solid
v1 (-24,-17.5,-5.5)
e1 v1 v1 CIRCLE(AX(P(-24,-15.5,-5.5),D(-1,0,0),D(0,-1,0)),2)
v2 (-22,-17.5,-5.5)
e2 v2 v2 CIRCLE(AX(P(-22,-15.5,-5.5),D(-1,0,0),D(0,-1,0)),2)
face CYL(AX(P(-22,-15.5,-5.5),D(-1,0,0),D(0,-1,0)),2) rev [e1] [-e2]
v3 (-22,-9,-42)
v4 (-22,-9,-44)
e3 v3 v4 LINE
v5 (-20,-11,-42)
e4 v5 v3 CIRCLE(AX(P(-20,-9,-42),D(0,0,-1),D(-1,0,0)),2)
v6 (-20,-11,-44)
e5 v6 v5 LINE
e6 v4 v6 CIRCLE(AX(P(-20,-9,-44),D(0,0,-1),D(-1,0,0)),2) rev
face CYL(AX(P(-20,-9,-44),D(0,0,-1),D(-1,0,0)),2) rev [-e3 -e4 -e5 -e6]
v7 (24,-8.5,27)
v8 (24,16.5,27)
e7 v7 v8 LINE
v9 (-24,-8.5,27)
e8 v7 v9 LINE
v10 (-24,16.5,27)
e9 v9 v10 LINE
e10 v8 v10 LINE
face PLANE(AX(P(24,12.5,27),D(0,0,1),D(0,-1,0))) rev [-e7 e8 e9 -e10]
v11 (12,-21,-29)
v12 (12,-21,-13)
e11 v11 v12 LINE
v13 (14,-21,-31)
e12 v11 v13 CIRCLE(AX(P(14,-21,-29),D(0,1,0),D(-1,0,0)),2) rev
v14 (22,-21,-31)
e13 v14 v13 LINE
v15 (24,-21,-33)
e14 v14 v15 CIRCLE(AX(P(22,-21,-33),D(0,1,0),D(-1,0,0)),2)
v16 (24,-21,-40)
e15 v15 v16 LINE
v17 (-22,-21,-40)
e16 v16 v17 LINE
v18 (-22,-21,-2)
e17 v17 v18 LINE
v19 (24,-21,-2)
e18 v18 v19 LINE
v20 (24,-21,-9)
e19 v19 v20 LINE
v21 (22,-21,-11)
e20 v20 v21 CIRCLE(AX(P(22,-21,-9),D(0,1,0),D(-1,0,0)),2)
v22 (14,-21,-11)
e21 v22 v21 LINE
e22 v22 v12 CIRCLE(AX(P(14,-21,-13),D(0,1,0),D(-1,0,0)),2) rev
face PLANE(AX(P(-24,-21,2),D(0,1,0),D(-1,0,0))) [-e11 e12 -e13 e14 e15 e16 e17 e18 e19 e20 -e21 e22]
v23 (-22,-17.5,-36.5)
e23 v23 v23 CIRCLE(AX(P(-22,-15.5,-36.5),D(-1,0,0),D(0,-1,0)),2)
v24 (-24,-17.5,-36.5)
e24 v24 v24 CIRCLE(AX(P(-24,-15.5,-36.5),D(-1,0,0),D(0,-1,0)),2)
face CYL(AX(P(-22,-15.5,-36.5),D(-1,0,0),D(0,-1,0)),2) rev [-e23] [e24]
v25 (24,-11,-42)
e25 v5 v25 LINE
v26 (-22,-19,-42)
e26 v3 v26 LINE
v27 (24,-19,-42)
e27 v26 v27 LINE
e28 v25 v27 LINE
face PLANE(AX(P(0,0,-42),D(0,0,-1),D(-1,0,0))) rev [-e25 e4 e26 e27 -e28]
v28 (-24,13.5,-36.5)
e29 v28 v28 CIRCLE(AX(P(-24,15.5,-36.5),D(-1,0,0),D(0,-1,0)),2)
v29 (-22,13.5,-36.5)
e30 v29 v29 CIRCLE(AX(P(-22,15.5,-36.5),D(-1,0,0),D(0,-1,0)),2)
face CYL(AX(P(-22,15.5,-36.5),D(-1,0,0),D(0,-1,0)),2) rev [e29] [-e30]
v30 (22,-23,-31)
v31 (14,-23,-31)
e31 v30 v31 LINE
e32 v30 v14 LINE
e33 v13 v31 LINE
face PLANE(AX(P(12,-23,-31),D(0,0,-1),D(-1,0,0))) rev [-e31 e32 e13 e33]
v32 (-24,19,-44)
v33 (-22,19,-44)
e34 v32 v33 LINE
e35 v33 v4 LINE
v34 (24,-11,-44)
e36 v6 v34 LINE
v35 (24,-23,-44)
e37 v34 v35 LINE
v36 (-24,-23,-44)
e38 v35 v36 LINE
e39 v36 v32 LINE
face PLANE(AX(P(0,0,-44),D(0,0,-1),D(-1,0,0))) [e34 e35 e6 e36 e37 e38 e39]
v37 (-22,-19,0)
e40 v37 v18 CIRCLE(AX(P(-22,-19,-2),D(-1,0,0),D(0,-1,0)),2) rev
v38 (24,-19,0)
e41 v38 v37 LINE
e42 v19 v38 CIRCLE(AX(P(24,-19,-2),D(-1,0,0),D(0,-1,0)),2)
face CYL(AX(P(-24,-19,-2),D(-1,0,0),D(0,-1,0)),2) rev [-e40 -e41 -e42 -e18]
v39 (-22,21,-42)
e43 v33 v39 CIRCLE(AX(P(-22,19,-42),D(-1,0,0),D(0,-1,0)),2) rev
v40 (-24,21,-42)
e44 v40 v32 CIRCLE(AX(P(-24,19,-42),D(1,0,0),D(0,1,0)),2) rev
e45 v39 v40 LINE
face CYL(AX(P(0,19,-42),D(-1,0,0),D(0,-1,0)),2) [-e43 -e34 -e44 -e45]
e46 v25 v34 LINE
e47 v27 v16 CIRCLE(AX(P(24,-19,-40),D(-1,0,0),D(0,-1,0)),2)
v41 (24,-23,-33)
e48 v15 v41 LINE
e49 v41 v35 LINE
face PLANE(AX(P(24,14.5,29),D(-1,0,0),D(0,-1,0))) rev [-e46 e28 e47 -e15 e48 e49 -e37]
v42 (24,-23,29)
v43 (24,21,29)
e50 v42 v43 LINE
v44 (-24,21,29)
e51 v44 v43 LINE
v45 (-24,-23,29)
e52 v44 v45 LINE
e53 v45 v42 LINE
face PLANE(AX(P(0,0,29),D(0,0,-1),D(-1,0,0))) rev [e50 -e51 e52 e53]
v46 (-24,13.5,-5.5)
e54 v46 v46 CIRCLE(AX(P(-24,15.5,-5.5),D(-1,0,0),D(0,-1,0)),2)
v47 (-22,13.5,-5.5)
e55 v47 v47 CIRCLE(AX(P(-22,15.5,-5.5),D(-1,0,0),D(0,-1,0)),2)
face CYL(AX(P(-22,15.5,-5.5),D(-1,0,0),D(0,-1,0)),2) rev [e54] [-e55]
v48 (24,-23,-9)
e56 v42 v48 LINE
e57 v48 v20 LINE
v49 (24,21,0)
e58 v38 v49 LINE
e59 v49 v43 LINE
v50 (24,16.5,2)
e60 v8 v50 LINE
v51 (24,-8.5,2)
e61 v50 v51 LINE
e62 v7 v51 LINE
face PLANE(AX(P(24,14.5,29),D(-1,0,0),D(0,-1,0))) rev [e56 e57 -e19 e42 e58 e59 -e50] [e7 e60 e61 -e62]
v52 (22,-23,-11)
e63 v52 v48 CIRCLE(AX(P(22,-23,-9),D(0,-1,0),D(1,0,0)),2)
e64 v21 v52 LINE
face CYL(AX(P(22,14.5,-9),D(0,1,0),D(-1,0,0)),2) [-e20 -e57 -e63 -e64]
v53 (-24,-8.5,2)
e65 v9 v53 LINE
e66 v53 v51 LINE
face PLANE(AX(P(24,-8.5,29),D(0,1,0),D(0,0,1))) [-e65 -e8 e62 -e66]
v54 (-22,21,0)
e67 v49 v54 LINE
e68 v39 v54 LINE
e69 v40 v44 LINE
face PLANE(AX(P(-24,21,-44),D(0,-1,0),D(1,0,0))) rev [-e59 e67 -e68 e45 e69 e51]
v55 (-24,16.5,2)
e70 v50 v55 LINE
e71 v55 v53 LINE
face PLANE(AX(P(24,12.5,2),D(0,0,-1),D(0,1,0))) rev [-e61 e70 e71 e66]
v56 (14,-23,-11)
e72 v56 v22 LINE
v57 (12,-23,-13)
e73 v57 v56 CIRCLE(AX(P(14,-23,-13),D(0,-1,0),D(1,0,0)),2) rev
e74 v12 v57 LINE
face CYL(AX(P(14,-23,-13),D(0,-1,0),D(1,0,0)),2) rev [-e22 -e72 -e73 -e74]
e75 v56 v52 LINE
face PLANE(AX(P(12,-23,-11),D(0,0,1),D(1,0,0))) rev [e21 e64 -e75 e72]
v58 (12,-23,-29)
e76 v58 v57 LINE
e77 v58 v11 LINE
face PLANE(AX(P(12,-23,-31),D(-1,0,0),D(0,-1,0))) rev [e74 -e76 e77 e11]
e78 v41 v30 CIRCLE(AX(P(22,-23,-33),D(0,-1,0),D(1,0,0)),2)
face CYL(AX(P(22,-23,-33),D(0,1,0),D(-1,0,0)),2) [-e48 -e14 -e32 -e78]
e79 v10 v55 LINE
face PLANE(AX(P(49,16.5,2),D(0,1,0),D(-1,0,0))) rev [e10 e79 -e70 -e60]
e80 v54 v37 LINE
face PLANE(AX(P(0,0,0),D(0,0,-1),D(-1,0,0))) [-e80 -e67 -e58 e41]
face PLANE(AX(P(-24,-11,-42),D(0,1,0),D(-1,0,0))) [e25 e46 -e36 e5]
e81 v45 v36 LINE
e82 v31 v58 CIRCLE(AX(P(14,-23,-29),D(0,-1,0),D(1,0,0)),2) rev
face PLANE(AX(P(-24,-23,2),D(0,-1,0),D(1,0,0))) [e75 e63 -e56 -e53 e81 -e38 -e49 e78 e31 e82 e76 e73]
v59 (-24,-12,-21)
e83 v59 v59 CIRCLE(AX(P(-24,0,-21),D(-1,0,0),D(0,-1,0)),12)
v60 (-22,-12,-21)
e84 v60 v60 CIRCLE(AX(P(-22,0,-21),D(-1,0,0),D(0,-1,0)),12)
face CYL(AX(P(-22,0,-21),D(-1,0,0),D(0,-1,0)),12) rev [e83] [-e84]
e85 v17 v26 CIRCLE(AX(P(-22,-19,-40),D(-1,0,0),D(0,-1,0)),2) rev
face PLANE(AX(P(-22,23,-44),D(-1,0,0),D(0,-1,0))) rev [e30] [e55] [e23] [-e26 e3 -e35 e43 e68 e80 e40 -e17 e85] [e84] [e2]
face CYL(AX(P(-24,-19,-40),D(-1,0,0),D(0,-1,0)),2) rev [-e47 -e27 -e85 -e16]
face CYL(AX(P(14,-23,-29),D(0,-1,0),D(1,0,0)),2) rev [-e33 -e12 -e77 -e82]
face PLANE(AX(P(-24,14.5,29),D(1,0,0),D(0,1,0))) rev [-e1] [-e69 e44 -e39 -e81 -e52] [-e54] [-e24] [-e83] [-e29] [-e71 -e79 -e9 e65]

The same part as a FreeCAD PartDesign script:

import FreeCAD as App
import Part
import Sketcher
from FreeCAD import Vector
Q = App.Units.Quantity


def edges_at(feature, points):
    """Names of the edges that pass closest to the given points."""
    edges = feature.Shape.Edges
    near = lambda p: min(range(len(edges)), key=lambda i: edges[i].distToShape(Part.Vertex(*p))[0])
    return sorted({f"Edge{near(p) + 1}" for p in points})

doc = App.newDocument("Part")
body = doc.addObject("PartDesign::Body", "Body")

# Sketch on XY plane
sketch1 = body.newObject("Sketcher::SketchObject", "Sketch")
sketch1.AttachmentSupport = (doc.getObject("XY_Plane"), [""])
sketch1.MapMode = "FlatFace"
sketch1.addGeometry([
    Part.LineSegment(Vector(-24, 14, 0), Vector(-24, -14, 0)),
    Part.LineSegment(Vector(-24, -14, 0), Vector(24, -14, 0)),
    Part.LineSegment(Vector(24, -14, 0), Vector(24, 14, 0)),
    Part.LineSegment(Vector(24, 14, 0), Vector(-24, 14, 0)),
], False)
sketch1.addConstraint([
    Sketcher.Constraint("Coincident", 0, 2, 1, 1),
    Sketcher.Constraint("Coincident", 1, 2, 2, 1),
    Sketcher.Constraint("Coincident", 2, 2, 3, 1),
    Sketcher.Constraint("Coincident", 3, 2, 0, 1),
    Sketcher.Constraint("Vertical", 0),
    Sketcher.Constraint("Horizontal", 1),
    Sketcher.Constraint("Vertical", 2),
    Sketcher.Constraint("Horizontal", 3),
    Sketcher.Constraint("Symmetric", 0, 2, 2, 2, -1, 1),
    Sketcher.Constraint("DistanceX", 1, 1, 1, 2, Q("48 mm")),
    Sketcher.Constraint("DistanceY", 0, 2, 0, 1, Q("29 mm")),
])
pad1 = body.newObject("PartDesign::Pad", "Pad")
pad1.Profile = sketch1
pad1.Length = 29

# Sketch on YZ plane
sketch2 = body.newObject("Sketcher::SketchObject", "Sketch001")
sketch2.AttachmentSupport = (doc.getObject("YZ_Plane"), [""])
sketch2.MapMode = "FlatFace"
sketch2.AttachmentOffset = App.Placement(Vector(0, 0, -24), App.Rotation())
sketch2.addGeometry([
    Part.LineSegment(Vector(12, 2, 0), Vector(-12, 2, 0)),
    Part.LineSegment(Vector(-12, 2, 0), Vector(-12, 27, 0)),
    Part.LineSegment(Vector(-12, 27, 0), Vector(12, 27, 0)),
    Part.LineSegment(Vector(12, 27, 0), Vector(12, 2, 0)),
], False)
sketch2.addConstraint([
    Sketcher.Constraint("Coincident", 0, 2, 1, 1),
    Sketcher.Constraint("Coincident", 1, 2, 2, 1),
    Sketcher.Constraint("Coincident", 2, 2, 3, 1),
    Sketcher.Constraint("Coincident", 3, 2, 0, 1),
    Sketcher.Constraint("Horizontal", 0),
    Sketcher.Constraint("Vertical", 1),
    Sketcher.Constraint("Horizontal", 2),
    Sketcher.Constraint("Vertical", 3),
    Sketcher.Constraint("Equal", 2, 1),
    Sketcher.Constraint("DistanceX", 0, 2, 0, 1, Q("25 mm")),
    Sketcher.Constraint("DistanceY", -1, 1, 0, 2, Q("2 mm")),
    Sketcher.Constraint("DistanceX", 0, 2, -1, 1, Q("12.5 mm")),
])
pocket1 = body.newObject("PartDesign::Pocket", "Pocket")
pocket1.Profile = sketch2
pocket1.Length = 48
pocket1.Reversed = True

# Sketch on XY plane
sketch3 = body.newObject("Sketcher::SketchObject", "Sketch002")
sketch3.AttachmentSupport = (doc.getObject("XY_Plane"), [""])
sketch3.MapMode = "FlatFace"
sketch3.addGeometry([
    Part.LineSegment(Vector(24, 23, 0), Vector(24, -23, 0)),
    Part.LineSegment(Vector(24, -23, 0), Vector(-24, -23, 0)),
    Part.LineSegment(Vector(-24, -23, 0), Vector(-24, 23, 0)),
    Part.LineSegment(Vector(-24, 23, 0), Vector(24, 23, 0)),
], False)
sketch3.addConstraint([
    Sketcher.Constraint("Coincident", 0, 2, 1, 1),
    Sketcher.Constraint("Coincident", 1, 2, 2, 1),
    Sketcher.Constraint("Coincident", 2, 2, 3, 1),
    Sketcher.Constraint("Coincident", 3, 2, 0, 1),
    Sketcher.Constraint("Vertical", 0),
    Sketcher.Constraint("Horizontal", 1),
    Sketcher.Constraint("Vertical", 2),
    Sketcher.Constraint("Horizontal", 3),
    Sketcher.Constraint("Symmetric", 0, 2, 2, 2, -1, 1),
    Sketcher.Constraint("DistanceX", 1, 2, 1, 1, Q("48 mm")),
    Sketcher.Constraint("DistanceY", 0, 2, 0, 1, Q("46 mm")),
])
pad2 = body.newObject("PartDesign::Pad", "Pad001")
pad2.Profile = sketch3
pad2.Length = 2

# Sketch on XY plane
sketch4 = body.newObject("Sketcher::SketchObject", "Sketch003")
sketch4.AttachmentSupport = (doc.getObject("XY_Plane"), [""])
sketch4.MapMode = "FlatFace"
sketch4.addGeometry([
    Part.LineSegment(Vector(24, -21, 0), Vector(24, -23, 0)),
    Part.LineSegment(Vector(24, -23, 0), Vector(-24, -23, 0)),
    Part.LineSegment(Vector(-24, -23, 0), Vector(-24, -21, 0)),
    Part.LineSegment(Vector(-24, -21, 0), Vector(24, -21, 0)),
], False)
sketch4.addConstraint([
    Sketcher.Constraint("Coincident", 0, 2, 1, 1),
    Sketcher.Constraint("Coincident", 1, 2, 2, 1),
    Sketcher.Constraint("Coincident", 2, 2, 3, 1),
    Sketcher.Constraint("Coincident", 3, 2, 0, 1),
    Sketcher.Constraint("Vertical", 0),
    Sketcher.Constraint("Horizontal", 1),
    Sketcher.Constraint("Vertical", 2),
    Sketcher.Constraint("Horizontal", 3),
    Sketcher.Constraint("DistanceX", 1, 2, 1, 1, Q("48 mm")),
    Sketcher.Constraint("DistanceY", 0, 2, 0, 1, Q("2 mm")),
    Sketcher.Constraint("DistanceX", -1, 1, 0, 2, Q("24 mm")),
    Sketcher.Constraint("DistanceY", 0, 2, -1, 1, Q("23 mm")),
])
pad3 = body.newObject("PartDesign::Pad", "Pad002")
pad3.Profile = sketch4
pad3.Type = "TwoLengths"
pad3.Length = 44
pad3.Length2 = 2
pad3.Reversed = True

# Sketch on XY plane
sketch5 = body.newObject("Sketcher::SketchObject", "Sketch004")
sketch5.AttachmentSupport = (doc.getObject("XY_Plane"), [""])
sketch5.MapMode = "FlatFace"
sketch5.addGeometry([
    Part.LineSegment(Vector(-22, 23, 0), Vector(-22, -23, 0)),
    Part.LineSegment(Vector(-22, -23, 0), Vector(-24, -23, 0)),
    Part.LineSegment(Vector(-24, -23, 0), Vector(-24, 23, 0)),
    Part.LineSegment(Vector(-24, 23, 0), Vector(-22, 23, 0)),
], False)
sketch5.addConstraint([
    Sketcher.Constraint("Coincident", 0, 2, 1, 1),
    Sketcher.Constraint("Coincident", 1, 2, 2, 1),
    Sketcher.Constraint("Coincident", 2, 2, 3, 1),
    Sketcher.Constraint("Coincident", 3, 2, 0, 1),
    Sketcher.Constraint("Vertical", 0),
    Sketcher.Constraint("Horizontal", 1),
    Sketcher.Constraint("Vertical", 2),
    Sketcher.Constraint("Horizontal", 3),
    Sketcher.Constraint("DistanceX", 1, 2, 1, 1, Q("2 mm")),
    Sketcher.Constraint("DistanceY", 0, 2, 0, 1, Q("46 mm")),
    Sketcher.Constraint("DistanceX", 0, 2, -1, 1, Q("22 mm")),
    Sketcher.Constraint("DistanceY", 0, 2, -1, 1, Q("23 mm")),
])
pad4 = body.newObject("PartDesign::Pad", "Pad003")
pad4.Profile = sketch5
pad4.Length = 44
pad4.Reversed = True

# Sketch on XY plane
sketch6 = body.newObject("Sketcher::SketchObject", "Sketch005")
sketch6.AttachmentSupport = (doc.getObject("XY_Plane"), [""])
sketch6.MapMode = "FlatFace"
sketch6.AttachmentOffset = App.Placement(Vector(0, 0, -44), App.Rotation())
sketch6.addGeometry([
    Part.LineSegment(Vector(24, -11, 0), Vector(24, -23, 0)),
    Part.LineSegment(Vector(24, -23, 0), Vector(-24, -23, 0)),
    Part.LineSegment(Vector(-24, -23, 0), Vector(-24, -11, 0)),
    Part.LineSegment(Vector(-24, -11, 0), Vector(24, -11, 0)),
], False)
sketch6.addConstraint([
    Sketcher.Constraint("Coincident", 0, 2, 1, 1),
    Sketcher.Constraint("Coincident", 1, 2, 2, 1),
    Sketcher.Constraint("Coincident", 2, 2, 3, 1),
    Sketcher.Constraint("Coincident", 3, 2, 0, 1),
    Sketcher.Constraint("Vertical", 0),
    Sketcher.Constraint("Horizontal", 1),
    Sketcher.Constraint("Vertical", 2),
    Sketcher.Constraint("Horizontal", 3),
    Sketcher.Constraint("DistanceX", 1, 2, 1, 1, Q("48 mm")),
    Sketcher.Constraint("DistanceY", 0, 2, 0, 1, Q("12 mm")),
    Sketcher.Constraint("DistanceX", -1, 1, 0, 2, Q("24 mm")),
    Sketcher.Constraint("DistanceY", 0, 2, -1, 1, Q("23 mm")),
])
pad5 = body.newObject("PartDesign::Pad", "Pad004")
pad5.Profile = sketch6
pad5.Length = 2

# Sketch on YZ plane
sketch7 = body.newObject("Sketcher::SketchObject", "Sketch006")
sketch7.AttachmentSupport = (doc.getObject("YZ_Plane"), [""])
sketch7.MapMode = "FlatFace"
sketch7.AttachmentOffset = App.Placement(Vector(0, 0, -24), App.Rotation())
sketch7.addGeometry([
    Part.Circle(Vector(15.5, -36.5, 0), Vector(0, 0, 1), 2),  # 0
    Part.Circle(Vector(15.5, -5.5, 0), Vector(0, 0, 1), 2),  # 1
    Part.Circle(Vector(-15.5, -5.5, 0), Vector(0, 0, 1), 2),  # 2
    Part.Circle(Vector(-15.5, -36.5, 0), Vector(0, 0, 1), 2),  # 3
    Part.Circle(Vector(0, -21, 0), Vector(0, 0, 1), 12),  # 4
], False)
sketch7.addConstraint([
    Sketcher.Constraint("Equal", 0, 1),
    Sketcher.Constraint("Equal", 1, 2),
    Sketcher.Constraint("Equal", 2, 3),
    Sketcher.Constraint("Symmetric", 1, 3, 2, 3, -2),
    Sketcher.Constraint("Symmetric", 0, 3, 3, 3, -2),
    Sketcher.Constraint("PointOnObject", 4, 3, -2),
    Sketcher.Constraint("Vertical", 0, 3, 1, 3),
    Sketcher.Constraint("Diameter", 0, Q("4 mm")),
    Sketcher.Constraint("Diameter", 4, Q("24 mm")),
    Sketcher.Constraint("DistanceY", 4, 3, -1, 1, Q("21 mm")),
    Sketcher.Constraint("DistanceY", 0, 3, 1, 3, Q("31 mm")),
    Sketcher.Constraint("DistanceX", 2, 3, 1, 3, Q("31 mm")),
    Sketcher.Constraint("DistanceY", 0, 3, -1, 1, Q("36.5 mm")),
])
pocket2 = body.newObject("PartDesign::Pocket", "Pocket001")
pocket2.Profile = sketch7
pocket2.Length = 2
pocket2.Reversed = True

# Sketch on XZ plane
sketch8 = body.newObject("Sketcher::SketchObject", "Sketch007")
sketch8.AttachmentSupport = (doc.getObject("XZ_Plane"), [""])
sketch8.MapMode = "FlatFace"
sketch8.AttachmentOffset = App.Placement(Vector(0, 0, 21), App.Rotation())
sketch8.addGeometry([
    Part.LineSegment(Vector(12, -31, 0), Vector(12, -11, 0)),
    Part.LineSegment(Vector(12, -11, 0), Vector(24, -11, 0)),
    Part.LineSegment(Vector(24, -11, 0), Vector(24, -31, 0)),
    Part.LineSegment(Vector(24, -31, 0), Vector(12, -31, 0)),
], False)
sketch8.addConstraint([
    Sketcher.Constraint("Coincident", 0, 2, 1, 1),
    Sketcher.Constraint("Coincident", 1, 2, 2, 1),
    Sketcher.Constraint("Coincident", 2, 2, 3, 1),
    Sketcher.Constraint("Coincident", 3, 2, 0, 1),
    Sketcher.Constraint("Vertical", 0),
    Sketcher.Constraint("Horizontal", 1),
    Sketcher.Constraint("Vertical", 2),
    Sketcher.Constraint("Horizontal", 3),
    Sketcher.Constraint("DistanceX", 1, 1, 1, 2, Q("12 mm")),
    Sketcher.Constraint("DistanceY", 0, 1, 0, 2, Q("20 mm")),
    Sketcher.Constraint("DistanceX", -1, 1, 0, 2, Q("12 mm")),
    Sketcher.Constraint("DistanceY", 0, 2, -1, 1, Q("11 mm")),
])
pocket3 = body.newObject("PartDesign::Pocket", "Pocket002")
pocket3.Profile = sketch8
pocket3.Length = 2
pocket3.Reversed = True
doc.recompute()

fillet = body.newObject("PartDesign::Fillet", "Fillet")
fillet.Base = (pocket3, edges_at(pocket3, [(-22, -11, -43)]))
fillet.Radius = 2

# Sketch on XY plane
sketch9 = body.newObject("Sketcher::SketchObject", "Sketch008")
sketch9.AttachmentSupport = (doc.getObject("XY_Plane"), [""])
sketch9.MapMode = "FlatFace"
sketch9.AttachmentOffset = App.Placement(Vector(0, 0, 29), App.Rotation())
sketch9.addGeometry([
    Part.LineSegment(Vector(-24, 23, 0), Vector(-24, 12, 0)),  # 0
    Part.LineSegment(Vector(-24, 12, 0), Vector(24, 12, 0)),  # 1
    Part.LineSegment(Vector(24, 12, 0), Vector(24, 23, 0)),  # 2
    Part.LineSegment(Vector(24, 23, 0), Vector(-24, 23, 0)),  # 3
    Part.LineSegment(Vector(-24, -12, 0), Vector(-24, -23, 0)),  # 4
    Part.LineSegment(Vector(-24, -23, 0), Vector(24, -23, 0)),  # 5
    Part.LineSegment(Vector(24, -23, 0), Vector(24, -12, 0)),  # 6
    Part.LineSegment(Vector(24, -12, 0), Vector(-24, -12, 0)),  # 7
], False)
sketch9.addConstraint([
    Sketcher.Constraint("Coincident", 0, 2, 1, 1),
    Sketcher.Constraint("Coincident", 1, 2, 2, 1),
    Sketcher.Constraint("Coincident", 2, 2, 3, 1),
    Sketcher.Constraint("Coincident", 3, 2, 0, 1),
    Sketcher.Constraint("Coincident", 4, 2, 5, 1),
    Sketcher.Constraint("Coincident", 5, 2, 6, 1),
    Sketcher.Constraint("Coincident", 6, 2, 7, 1),
    Sketcher.Constraint("Coincident", 7, 2, 4, 1),
    Sketcher.Constraint("Vertical", 0),
    Sketcher.Constraint("Horizontal", 1),
    Sketcher.Constraint("Vertical", 2),
    Sketcher.Constraint("Horizontal", 3),
    Sketcher.Constraint("Vertical", 4),
    Sketcher.Constraint("Horizontal", 5),
    Sketcher.Constraint("Vertical", 6),
    Sketcher.Constraint("Horizontal", 7),
    Sketcher.Constraint("Symmetric", 2, 2, 4, 2, -1, 1),
    Sketcher.Constraint("Symmetric", 0, 2, 6, 2, -1, 1),
    Sketcher.Constraint("Vertical", 3, 2, 4, 2),
    Sketcher.Constraint("DistanceX", 1, 1, 1, 2, Q("48 mm")),
    Sketcher.Constraint("DistanceY", 0, 2, 0, 1, Q("10.5 mm")),
    Sketcher.Constraint("DistanceY", -1, 1, 2, 2, Q("23 mm")),
])
pad6 = body.newObject("PartDesign::Pad", "Pad005")
pad6.Profile = sketch9
pad6.Length = 29
pad6.Reversed = True

# Sketch on XY plane
sketch10 = body.newObject("Sketcher::SketchObject", "Sketch009")
sketch10.AttachmentSupport = (doc.getObject("XY_Plane"), [""])
sketch10.MapMode = "FlatFace"
sketch10.AttachmentOffset = App.Placement(Vector(0, 0, 29), App.Rotation())
sketch10.addGeometry([
    Part.LineSegment(Vector(-24, 23, 0), Vector(-24, 21, 0)),
    Part.LineSegment(Vector(-24, 21, 0), Vector(24, 21, 0)),
    Part.LineSegment(Vector(24, 21, 0), Vector(24, 23, 0)),
    Part.LineSegment(Vector(24, 23, 0), Vector(-24, 23, 0)),
], False)
sketch10.addConstraint([
    Sketcher.Constraint("Coincident", 0, 2, 1, 1),
    Sketcher.Constraint("Coincident", 1, 2, 2, 1),
    Sketcher.Constraint("Coincident", 2, 2, 3, 1),
    Sketcher.Constraint("Coincident", 3, 2, 0, 1),
    Sketcher.Constraint("Vertical", 0),
    Sketcher.Constraint("Horizontal", 1),
    Sketcher.Constraint("Vertical", 2),
    Sketcher.Constraint("Horizontal", 3),
    Sketcher.Constraint("DistanceX", 1, 1, 1, 2, Q("48 mm")),
    Sketcher.Constraint("DistanceY", 0, 2, 0, 1, Q("2 mm")),
    Sketcher.Constraint("DistanceX", 0, 2, -1, 1, Q("24 mm")),
    Sketcher.Constraint("DistanceY", -1, 1, 0, 2, Q("21 mm")),
])
pocket4 = body.newObject("PartDesign::Pocket", "Pocket003")
pocket4.Profile = sketch10
pocket4.Length = 73

# Sketch on YZ plane
sketch11 = body.newObject("Sketcher::SketchObject", "Sketch010")
sketch11.AttachmentSupport = (doc.getObject("YZ_Plane"), [""])
sketch11.MapMode = "FlatFace"
sketch11.AttachmentOffset = App.Placement(Vector(0, 0, -24), App.Rotation())
sketch11.addGeometry([
    Part.LineSegment(Vector(16.5, 2, 0), Vector(12.5, 2, 0)),
    Part.LineSegment(Vector(12.5, 2, 0), Vector(12.5, 27, 0)),
    Part.LineSegment(Vector(12.5, 27, 0), Vector(16.5, 27, 0)),
    Part.LineSegment(Vector(16.5, 27, 0), Vector(16.5, 2, 0)),
], False)
sketch11.addConstraint([
    Sketcher.Constraint("Coincident", 0, 2, 1, 1),
    Sketcher.Constraint("Coincident", 1, 2, 2, 1),
    Sketcher.Constraint("Coincident", 2, 2, 3, 1),
    Sketcher.Constraint("Coincident", 3, 2, 0, 1),
    Sketcher.Constraint("Horizontal", 0),
    Sketcher.Constraint("Vertical", 1),
    Sketcher.Constraint("Horizontal", 2),
    Sketcher.Constraint("Vertical", 3),
    Sketcher.Constraint("DistanceX", 0, 2, 0, 1, Q("4 mm")),
    Sketcher.Constraint("DistanceY", 1, 1, 1, 2, Q("25 mm")),
    Sketcher.Constraint("DistanceY", -1, 1, 0, 2, Q("2 mm")),
    Sketcher.Constraint("DistanceX", -1, 1, 0, 2, Q("12.5 mm")),
])
pocket5 = body.newObject("PartDesign::Pocket", "Pocket004")
pocket5.Profile = sketch11
pocket5.Length = 73
pocket5.Reversed = True

# Sketch on YZ plane
sketch12 = body.newObject("Sketcher::SketchObject", "Sketch011")
sketch12.AttachmentSupport = (doc.getObject("YZ_Plane"), [""])
sketch12.MapMode = "FlatFace"
sketch12.AttachmentOffset = App.Placement(Vector(0, 0, -24), App.Rotation())
sketch12.addGeometry([
    Part.LineSegment(Vector(-8, 1, 0), Vector(-23, 1, 0)),
    Part.LineSegment(Vector(-23, 1, 0), Vector(-23, 29, 0)),
    Part.LineSegment(Vector(-23, 29, 0), Vector(-8, 29, 0)),
    Part.LineSegment(Vector(-8, 29, 0), Vector(-8, 1, 0)),
], False)
sketch12.addConstraint([
    Sketcher.Constraint("Coincident", 0, 2, 1, 1),
    Sketcher.Constraint("Coincident", 1, 2, 2, 1),
    Sketcher.Constraint("Coincident", 2, 2, 3, 1),
    Sketcher.Constraint("Coincident", 3, 2, 0, 1),
    Sketcher.Constraint("Horizontal", 0),
    Sketcher.Constraint("Vertical", 1),
    Sketcher.Constraint("Horizontal", 2),
    Sketcher.Constraint("Vertical", 3),
    Sketcher.Constraint("DistanceY", 1, 1, 1, 2, Q("28 mm")),
    Sketcher.Constraint("DistanceX", 0, 2, 0, 1, Q("14.5 mm")),
    Sketcher.Constraint("DistanceX", 0, 2, -1, 1, Q("23 mm")),
    Sketcher.Constraint("DistanceY", -1, 1, 0, 2, Q("1 mm")),
])
pad7 = body.newObject("PartDesign::Pad", "Pad006")
pad7.Profile = sketch12
pad7.Length = 48
doc.recompute()

fillet2 = body.newObject("PartDesign::Fillet", "Fillet001")
fillet2.Base = (pad7, edges_at(pad7, [(1, -21, 0)]))
fillet2.Radius = 2
doc.recompute()

fillet3 = body.newObject("PartDesign::Fillet", "Fillet002")
fillet3.Base = (fillet2, edges_at(fillet2, [(1, -21, -42)]))
fillet3.Radius = 2
doc.recompute()

fillet4 = body.newObject("PartDesign::Fillet", "Fillet003")
fillet4.Base = (fillet3, edges_at(fillet3, [(-23, 21, -44)]))
fillet4.Radius = 2
doc.recompute()

fillet5 = body.newObject("PartDesign::Fillet", "Fillet004")
fillet5.Base = (fillet4, edges_at(fillet4, [
    (24, -22, -31),
    (24, -22, -11),
    (12, -22, -11),
    (12, -22, -31),
]))
fillet5.Radius = 2

doc.recompute()
